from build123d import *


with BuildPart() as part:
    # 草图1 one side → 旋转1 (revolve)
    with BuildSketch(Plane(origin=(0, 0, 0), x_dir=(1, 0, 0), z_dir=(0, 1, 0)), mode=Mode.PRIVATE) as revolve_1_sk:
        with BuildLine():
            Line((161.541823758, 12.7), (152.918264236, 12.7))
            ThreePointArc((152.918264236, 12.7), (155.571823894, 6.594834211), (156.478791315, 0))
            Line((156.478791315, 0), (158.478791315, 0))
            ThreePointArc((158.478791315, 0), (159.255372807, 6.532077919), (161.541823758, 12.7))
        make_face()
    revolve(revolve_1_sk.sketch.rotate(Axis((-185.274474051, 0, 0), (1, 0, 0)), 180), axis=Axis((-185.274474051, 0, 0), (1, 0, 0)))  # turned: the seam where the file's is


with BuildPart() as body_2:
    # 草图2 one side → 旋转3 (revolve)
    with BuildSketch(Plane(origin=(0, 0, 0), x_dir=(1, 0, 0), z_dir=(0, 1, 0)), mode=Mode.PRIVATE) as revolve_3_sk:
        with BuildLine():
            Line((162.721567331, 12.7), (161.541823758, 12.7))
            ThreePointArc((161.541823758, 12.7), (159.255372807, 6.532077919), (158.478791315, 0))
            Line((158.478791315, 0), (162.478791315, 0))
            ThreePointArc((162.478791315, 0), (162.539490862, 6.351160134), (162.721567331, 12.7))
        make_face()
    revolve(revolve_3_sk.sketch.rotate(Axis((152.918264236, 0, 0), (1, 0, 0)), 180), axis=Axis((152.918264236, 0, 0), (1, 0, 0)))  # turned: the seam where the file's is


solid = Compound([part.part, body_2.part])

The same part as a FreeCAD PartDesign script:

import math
import FreeCAD as App
import Part
import Sketcher

V = App.Vector

doc = App.newDocument("Part")
body = doc.addObject("PartDesign::Body", "Body")

sketch1 = body.newObject("Sketcher::SketchObject", "Sketch")
sketch1.AttachmentSupport = (doc.getObject("XZ_Plane"), [""])
sketch1.MapMode = "FlatFace"
sketch1.addGeometry([
    Part.LineSegment(V(161.5, -12.7, 0), V(152.9, -12.7, 0)),
    Part.ArcOfCircle(Part.Circle(V(132, 0, 0), V(0, 0, 1), 24.4), math.radians(-31), math.radians(0)),
    Part.LineSegment(V(156.5, 0, 0), V(158.5, 0, 0)),
    Part.ArcOfCircle(Part.Circle(V(186.3, 0, 0), V(0, 0, 1), 27.9), math.radians(180), math.radians(207)),
], False)
sketch1.addConstraint([
    Sketcher.Constraint("Coincident", 0, 2, 1, 1),
    Sketcher.Constraint("Coincident", 1, 2, 2, 1),
    Sketcher.Constraint("Coincident", 2, 2, 3, 1),
    Sketcher.Constraint("Coincident", 3, 2, 0, 1),
    Sketcher.Constraint("Horizontal", 0),
    Sketcher.Constraint("Horizontal", 2),
    Sketcher.Constraint("PointOnObject", 1, 3, -1),
    Sketcher.Constraint("PointOnObject", 3, 3, -1),
    Sketcher.Constraint("PointOnObject", 1, 2, -1),
    Sketcher.Constraint("DistanceX", 2, 1, 2, 2, 2.0),
    Sketcher.Constraint("Radius", 1, 24.43),
    Sketcher.Constraint("Radius", 3, 27.86),
    Sketcher.Constraint("DistanceY", 0, 2, -1, 1, 12.7),
    Sketcher.Constraint("DistanceX", -1, 1, 1, 3, 132.048791),
])
revolution = body.newObject("PartDesign::Revolution", "Revolution")
revolution.Profile = sketch1
revolution.ReferenceAxis = (sketch1, ["H_Axis"])
revolution.Angle = 360
body2 = doc.addObject("PartDesign::Body", "Body001")

sketch2 = body2.newObject("Sketcher::SketchObject", "Sketch001")
sketch2.AttachmentSupport = (doc.getObject("XZ_Plane001"), [""])
sketch2.MapMode = "FlatFace"
sketch2.addGeometry([
    Part.LineSegment(V(162.7, -12.7, 0), V(161.5, -12.7, 0)),
    Part.ArcOfCircle(Part.Circle(V(186.3, 0, 0), V(0, 0, 1), 27.9), math.radians(180), math.radians(207)),
    Part.LineSegment(V(158.5, 0, 0), V(162.5, 0, 0)),
    Part.ArcOfCircle(Part.Circle(V(494.8, 0, 0), V(0, 0, 1), 332.3), math.radians(180), math.radians(182.19)),
], False)
sketch2.addConstraint([
    Sketcher.Constraint("Coincident", 0, 2, 1, 2),
    Sketcher.Constraint("Coincident", 1, 1, 2, 1),
    Sketcher.Constraint("Coincident", 2, 2, 3, 1),
    Sketcher.Constraint("Coincident", 3, 2, 0, 1),
    Sketcher.Constraint("Horizontal", 0),
    Sketcher.Constraint("Horizontal", 2),
    Sketcher.Constraint("PointOnObject", 1, 3, -1),
    Sketcher.Constraint("PointOnObject", 3, 3, -1),
    Sketcher.Constraint("PointOnObject", 1, 1, -1),
    Sketcher.Constraint("DistanceX", 2, 1, 2, 2, 4.0),
    Sketcher.Constraint("Radius", 1, 27.86),
    Sketcher.Constraint("DistanceY", 0, 2, -1, 1, 12.7),
    Sketcher.Constraint("Radius", 3, 332.299995),
    Sketcher.Constraint("DistanceX", -1, 1, 1, 3, 186.338791),
])
revolution2 = body2.newObject("PartDesign::Revolution", "Revolution001")
revolution2.Profile = sketch2
revolution2.ReferenceAxis = (sketch2, ["H_Axis"])
revolution2.Angle = 360

doc.recompute()
